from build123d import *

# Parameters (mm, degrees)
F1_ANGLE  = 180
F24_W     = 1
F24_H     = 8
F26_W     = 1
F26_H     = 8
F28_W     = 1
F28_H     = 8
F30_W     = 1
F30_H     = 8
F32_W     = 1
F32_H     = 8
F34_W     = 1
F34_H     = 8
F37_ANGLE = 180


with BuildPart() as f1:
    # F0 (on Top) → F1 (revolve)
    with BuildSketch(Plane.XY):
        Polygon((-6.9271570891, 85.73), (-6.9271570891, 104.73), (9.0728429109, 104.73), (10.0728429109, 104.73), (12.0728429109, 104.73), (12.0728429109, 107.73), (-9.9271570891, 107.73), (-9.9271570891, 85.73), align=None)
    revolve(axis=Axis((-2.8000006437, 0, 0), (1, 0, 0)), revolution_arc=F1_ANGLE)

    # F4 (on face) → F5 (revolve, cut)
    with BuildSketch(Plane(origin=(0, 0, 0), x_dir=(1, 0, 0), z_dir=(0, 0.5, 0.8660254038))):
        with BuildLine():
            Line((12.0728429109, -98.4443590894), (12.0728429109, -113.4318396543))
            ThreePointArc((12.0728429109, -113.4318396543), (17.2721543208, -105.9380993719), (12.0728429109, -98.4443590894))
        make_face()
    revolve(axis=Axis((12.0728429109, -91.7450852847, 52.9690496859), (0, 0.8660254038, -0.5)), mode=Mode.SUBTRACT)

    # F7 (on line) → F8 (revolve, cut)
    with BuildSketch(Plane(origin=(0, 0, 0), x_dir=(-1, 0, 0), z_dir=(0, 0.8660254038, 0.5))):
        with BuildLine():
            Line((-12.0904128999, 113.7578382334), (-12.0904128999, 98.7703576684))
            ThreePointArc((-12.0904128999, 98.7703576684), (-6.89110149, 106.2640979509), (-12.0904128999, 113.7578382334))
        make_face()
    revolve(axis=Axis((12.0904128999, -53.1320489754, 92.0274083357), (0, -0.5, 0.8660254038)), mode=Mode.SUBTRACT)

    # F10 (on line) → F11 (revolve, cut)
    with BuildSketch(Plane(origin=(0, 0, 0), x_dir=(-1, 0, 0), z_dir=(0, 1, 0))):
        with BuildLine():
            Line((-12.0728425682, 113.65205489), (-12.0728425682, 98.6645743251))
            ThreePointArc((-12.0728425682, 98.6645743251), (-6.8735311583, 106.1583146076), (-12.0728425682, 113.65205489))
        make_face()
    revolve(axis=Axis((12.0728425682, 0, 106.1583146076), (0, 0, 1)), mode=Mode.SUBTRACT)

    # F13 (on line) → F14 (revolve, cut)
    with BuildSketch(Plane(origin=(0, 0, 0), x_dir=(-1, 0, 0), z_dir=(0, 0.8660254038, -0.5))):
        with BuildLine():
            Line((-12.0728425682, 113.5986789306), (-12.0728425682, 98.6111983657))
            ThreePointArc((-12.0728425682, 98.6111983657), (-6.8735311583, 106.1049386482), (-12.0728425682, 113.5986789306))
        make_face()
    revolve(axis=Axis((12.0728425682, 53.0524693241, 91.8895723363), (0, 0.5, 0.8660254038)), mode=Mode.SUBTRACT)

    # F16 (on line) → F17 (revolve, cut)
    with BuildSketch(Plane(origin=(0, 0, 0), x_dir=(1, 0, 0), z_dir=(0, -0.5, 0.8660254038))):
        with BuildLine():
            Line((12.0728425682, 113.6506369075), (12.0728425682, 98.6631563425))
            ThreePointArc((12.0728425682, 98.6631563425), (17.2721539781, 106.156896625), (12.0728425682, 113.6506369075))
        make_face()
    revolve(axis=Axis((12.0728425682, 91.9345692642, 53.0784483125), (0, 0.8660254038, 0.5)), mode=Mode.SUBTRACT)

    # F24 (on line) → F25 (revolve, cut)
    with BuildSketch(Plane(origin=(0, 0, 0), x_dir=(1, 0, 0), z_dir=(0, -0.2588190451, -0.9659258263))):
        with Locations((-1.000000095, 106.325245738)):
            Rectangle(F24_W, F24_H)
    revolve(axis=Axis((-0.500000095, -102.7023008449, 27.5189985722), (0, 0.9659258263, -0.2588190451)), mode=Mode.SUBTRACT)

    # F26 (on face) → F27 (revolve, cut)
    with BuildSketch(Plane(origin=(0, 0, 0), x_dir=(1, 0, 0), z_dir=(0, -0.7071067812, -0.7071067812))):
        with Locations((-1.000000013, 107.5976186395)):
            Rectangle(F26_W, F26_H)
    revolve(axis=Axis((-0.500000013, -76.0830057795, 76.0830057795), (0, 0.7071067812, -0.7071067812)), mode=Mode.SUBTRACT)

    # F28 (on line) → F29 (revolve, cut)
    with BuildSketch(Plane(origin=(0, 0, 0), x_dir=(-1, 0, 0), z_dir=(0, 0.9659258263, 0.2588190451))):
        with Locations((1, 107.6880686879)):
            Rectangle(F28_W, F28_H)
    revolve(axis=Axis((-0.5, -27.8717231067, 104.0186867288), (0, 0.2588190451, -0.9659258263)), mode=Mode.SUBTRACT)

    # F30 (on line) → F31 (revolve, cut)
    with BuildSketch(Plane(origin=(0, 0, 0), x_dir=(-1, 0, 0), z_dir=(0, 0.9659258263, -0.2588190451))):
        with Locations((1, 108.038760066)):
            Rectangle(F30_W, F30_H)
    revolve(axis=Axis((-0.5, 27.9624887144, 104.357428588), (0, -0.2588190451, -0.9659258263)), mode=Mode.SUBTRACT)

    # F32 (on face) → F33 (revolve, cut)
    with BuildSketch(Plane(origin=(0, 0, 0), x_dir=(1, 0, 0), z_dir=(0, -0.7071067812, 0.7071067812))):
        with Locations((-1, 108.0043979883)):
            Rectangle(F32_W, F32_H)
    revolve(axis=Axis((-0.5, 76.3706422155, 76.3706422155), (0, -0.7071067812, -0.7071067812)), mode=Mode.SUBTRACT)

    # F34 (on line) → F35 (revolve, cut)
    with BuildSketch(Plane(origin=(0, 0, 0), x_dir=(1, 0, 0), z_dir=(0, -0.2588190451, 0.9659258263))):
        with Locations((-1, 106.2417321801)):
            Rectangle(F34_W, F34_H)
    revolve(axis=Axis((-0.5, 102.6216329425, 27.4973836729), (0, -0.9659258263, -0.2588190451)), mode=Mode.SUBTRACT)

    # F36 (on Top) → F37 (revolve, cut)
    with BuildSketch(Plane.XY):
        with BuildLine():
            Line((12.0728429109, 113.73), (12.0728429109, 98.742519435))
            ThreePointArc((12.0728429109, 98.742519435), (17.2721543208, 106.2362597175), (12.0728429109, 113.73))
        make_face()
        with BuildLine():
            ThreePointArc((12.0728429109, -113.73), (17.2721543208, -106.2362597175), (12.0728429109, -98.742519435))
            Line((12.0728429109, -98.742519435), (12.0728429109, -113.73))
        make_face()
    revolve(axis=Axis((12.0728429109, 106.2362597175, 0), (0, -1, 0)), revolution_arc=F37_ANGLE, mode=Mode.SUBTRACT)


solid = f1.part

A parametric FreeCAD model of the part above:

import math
import FreeCAD as App
import Part
import Sketcher
from FreeCAD import Vector
Q = App.Units.Quantity

doc = App.newDocument("Part")
params = doc.addObject("Spreadsheet::Sheet", "Params")
for row, (alias, value) in enumerate([
    ("sketch1_width", "19 mm"),
    ("sketch1_width2", "22 mm"),
    ("revolution_angle", "180 deg"),
    ("sketch2_radius", "8 mm"),
    ("groove_angle", "360 deg"),
    ("sketch3_radius", "8 mm"),
    ("groove2_angle", "360 deg"),
    ("sketch4_radius", "8 mm"),
    ("groove3_angle", "360 deg"),
    ("sketch5_radius", "8 mm"),
    ("groove4_angle", "360 deg"),
    ("sketch6_radius", "8 mm"),
    ("groove5_angle", "360 deg"),
    ("sketch7_width", "1 mm"),
    ("sketch7_height", "8 mm"),
    ("groove6_angle", "360 deg"),
    ("sketch8_width", "1 mm"),
    ("sketch8_height", "8 mm"),
    ("groove7_angle", "360 deg"),
    ("sketch9_width", "1 mm"),
    ("sketch9_height", "8 mm"),
    ("groove8_angle", "360 deg"),
    ("sketch10_width", "1 mm"),
    ("sketch10_height", "8 mm"),
    ("groove9_angle", "360 deg"),
    ("sketch11_width", "1 mm"),
    ("sketch11_height", "8 mm"),
    ("groove10_angle", "360 deg"),
    ("sketch12_width", "1 mm"),
    ("sketch12_height", "8 mm"),
    ("groove11_angle", "360 deg"),
    ("sketch13_radius", "8 mm"),
    ("sketch13_height", "227.46 mm"),
    ("groove12_angle", "180 deg"),
], start=1):
    params.set(f"A{row}", alias)
    params.set(f"B{row}", "=" + value)
    params.setAlias(f"B{row}", alias)

body = doc.addObject("PartDesign::Body", "Body")

# Sketch on XY plane
sketch1 = body.newObject("Sketcher::SketchObject", "Sketch")
sketch1.AttachmentSupport = (doc.getObject("XY_Plane"), [""])
sketch1.MapMode = "FlatFace"
sketch1.addGeometry([
    Part.LineSegment(Vector(-6.9, 85.7, 0), Vector(-6.9, 104.7, 0)),  # 0
    Part.LineSegment(Vector(-6.9, 104.7, 0), Vector(12.1, 104.7, 0)),  # 1
    Part.LineSegment(Vector(12.1, 104.7, 0), Vector(12.1, 107.7, 0)),  # 2
    Part.LineSegment(Vector(12.1, 107.7, 0), Vector(-9.9, 107.7, 0)),  # 3
    Part.LineSegment(Vector(-9.9, 107.7, 0), Vector(-9.9, 85.7, 0)),  # 4
    Part.LineSegment(Vector(-9.9, 85.7, 0), Vector(-6.9, 85.7, 0)),  # 5
], False)
sketch1.addConstraint([
    Sketcher.Constraint("Coincident", 0, 2, 1, 1),
    Sketcher.Constraint("Coincident", 1, 2, 2, 1),
    Sketcher.Constraint("Coincident", 2, 2, 3, 1),
    Sketcher.Constraint("Coincident", 3, 2, 4, 1),
    Sketcher.Constraint("Coincident", 4, 2, 5, 1),
    Sketcher.Constraint("Coincident", 5, 2, 0, 1),
    Sketcher.Constraint("Vertical", 0),
    Sketcher.Constraint("Horizontal", 1),
    Sketcher.Constraint("Vertical", 2),
    Sketcher.Constraint("Horizontal", 3),
    Sketcher.Constraint("Vertical", 4),
    Sketcher.Constraint("Horizontal", 5),
    Sketcher.Constraint("Equal", 1, 0),
    Sketcher.Constraint("Equal", 5, 2),
    Sketcher.Constraint("DistanceX", 1, 1, 1, 2, Q("19 mm")),
    Sketcher.Constraint("DistanceX", 3, 2, 3, 1, Q("22 mm")),
    Sketcher.Constraint("DistanceY", -1, 1, 0, 2, Q("104.73 mm")),
    Sketcher.Constraint("DistanceX", 0, 2, -1, 1, Q("6.927157 mm")),
])
sketch1.setExpression("Constraints[14]", "Params.sketch1_width")
sketch1.setExpression("Constraints[15]", "Params.sketch1_width2")
revolution = body.newObject("PartDesign::Revolution", "Revolution")
revolution.Profile = sketch1
revolution.ReferenceAxis = (sketch1, ["H_Axis"])
revolution.setExpression("Angle", "Params.revolution_angle")

# Sketch on an angled plane
sketch2 = body.newObject("Sketcher::SketchObject", "Sketch001")
sketch2.Placement = App.Placement(Vector(0, 0, 0), App.Rotation(Vector(1, 0, 0), Vector(0, 0.866025404, -0.5), Vector(0, 0.5, 0.866025404), "ZXY"))
sketch2.addGeometry([
    Part.LineSegment(Vector(12, -98, 0), Vector(12, -113, 0)),
    Part.ArcOfCircle(Part.Circle(Vector(9, -106, 0), Vector(0, 0, 1), 8), math.radians(-70), math.radians(70)),
], False)
sketch2.addGeometry(Part.LineSegment(Vector(12, -113, 0), Vector(12, -98, 0)), True)  # axis
sketch2.addConstraint([
    Sketcher.Constraint("Coincident", 0, 1, 1, 2),
    Sketcher.Constraint("Coincident", 1, 1, 0, 2),
    Sketcher.Constraint("Vertical", 0),
    Sketcher.Constraint("Vertical", 2),
    Sketcher.Constraint("Coincident", 2, 1, 1, 1),
    Sketcher.Constraint("Equal", 0, 2),
    Sketcher.Constraint("Radius", 1, Q("8 mm")),
    Sketcher.Constraint("DistanceY", 0, 2, 0, 1, Q("14.987481 mm")),
    Sketcher.Constraint("DistanceY", 1, 3, -1, 1, Q("105.938099 mm")),
    Sketcher.Constraint("DistanceX", -1, 1, 1, 3, Q("9.272154 mm")),
])
sketch2.setExpression("Constraints[6]", "Params.sketch2_radius")
groove = body.newObject("PartDesign::Groove", "Groove")
groove.Profile = sketch2
groove.ReferenceAxis = (sketch2, ["Axis0"])
groove.setExpression("Angle", "Params.groove_angle")

# Sketch on an angled plane
sketch3 = body.newObject("Sketcher::SketchObject", "Sketch002")
sketch3.Placement = App.Placement(Vector(0, 0, 0), App.Rotation(Vector(-1, 0, 0), Vector(0, -0.5, 0.866025404), Vector(0, 0.866025404, 0.5), "ZXY"))
sketch3.addGeometry([
    Part.LineSegment(Vector(-12, 114, 0), Vector(-12, 99, 0)),
    Part.ArcOfCircle(Part.Circle(Vector(-15, 106, 0), Vector(0, 0, 1), 8), math.radians(-70), math.radians(70)),
], False)
sketch3.addGeometry(Part.LineSegment(Vector(-12, 99, 0), Vector(-12, 114, 0)), True)  # axis
sketch3.addConstraint([
    Sketcher.Constraint("Coincident", 0, 1, 1, 2),
    Sketcher.Constraint("Coincident", 1, 1, 0, 2),
    Sketcher.Constraint("Vertical", 0),
    Sketcher.Constraint("Vertical", 2),
    Sketcher.Constraint("Coincident", 2, 1, 1, 1),
    Sketcher.Constraint("Equal", 0, 2),
    Sketcher.Constraint("Radius", 1, Q("8 mm")),
    Sketcher.Constraint("DistanceY", 0, 2, 0, 1, Q("14.987481 mm")),
    Sketcher.Constraint("DistanceX", 1, 3, -1, 1, Q("14.891101 mm")),
    Sketcher.Constraint("DistanceY", -1, 1, 0, 1, Q("113.757838 mm")),
])
sketch3.setExpression("Constraints[6]", "Params.sketch3_radius")
groove2 = body.newObject("PartDesign::Groove", "Groove001")
groove2.Profile = sketch3
groove2.ReferenceAxis = (sketch3, ["Axis0"])
groove2.setExpression("Angle", "Params.groove2_angle")

# Sketch on XZ plane
sketch4 = body.newObject("Sketcher::SketchObject", "Sketch003")
sketch4.AttachmentSupport = (doc.getObject("XZ_Plane"), [""])
sketch4.MapMode = "FlatFace"
sketch4.addGeometry([
    Part.LineSegment(Vector(12, 114, 0), Vector(12, 99, 0)),
    Part.ArcOfCircle(Part.Circle(Vector(15, 106, 0), Vector(0, 0, 1), 8), math.radians(110), math.radians(250)),
], False)
sketch4.addGeometry(Part.LineSegment(Vector(12, 99, 0), Vector(12, 114, 0)), True)  # axis
sketch4.addConstraint([
    Sketcher.Constraint("Coincident", 0, 1, 1, 1),
    Sketcher.Constraint("Coincident", 1, 2, 0, 2),
    Sketcher.Constraint("Vertical", 0),
    Sketcher.Constraint("Vertical", 2),
    Sketcher.Constraint("Coincident", 2, 1, 1, 2),
    Sketcher.Constraint("Equal", 0, 2),
    Sketcher.Constraint("Radius", 1, Q("8 mm")),
    Sketcher.Constraint("DistanceY", 0, 2, 0, 1, Q("14.987481 mm")),
    Sketcher.Constraint("DistanceX", -1, 1, 1, 3, Q("14.873531 mm")),
    Sketcher.Constraint("DistanceY", -1, 1, 1, 3, Q("106.158315 mm")),
])
sketch4.setExpression("Constraints[6]", "Params.sketch4_radius")
groove3 = body.newObject("PartDesign::Groove", "Groove002")
groove3.Profile = sketch4
groove3.ReferenceAxis = (sketch4, ["Axis0"])
groove3.setExpression("Angle", "Params.groove3_angle")

# Sketch on an angled plane
sketch5 = body.newObject("Sketcher::SketchObject", "Sketch004")
sketch5.Placement = App.Placement(Vector(0, 0, 0), App.Rotation(Vector(-1, 0, 0), Vector(0, 0.5, 0.866025404), Vector(0, 0.866025404, -0.5), "ZXY"))
sketch5.addGeometry([
    Part.LineSegment(Vector(-12, 114, 0), Vector(-12, 99, 0)),
    Part.ArcOfCircle(Part.Circle(Vector(-15, 106, 0), Vector(0, 0, 1), 8), math.radians(-70), math.radians(70)),
], False)
sketch5.addGeometry(Part.LineSegment(Vector(-12, 99, 0), Vector(-12, 114, 0)), True)  # axis
sketch5.addConstraint([
    Sketcher.Constraint("Coincident", 0, 1, 1, 2),
    Sketcher.Constraint("Coincident", 1, 1, 0, 2),
    Sketcher.Constraint("Vertical", 0),
    Sketcher.Constraint("Vertical", 2),
    Sketcher.Constraint("Coincident", 2, 1, 1, 1),
    Sketcher.Constraint("Equal", 0, 2),
    Sketcher.Constraint("Radius", 1, Q("8 mm")),
    Sketcher.Constraint("DistanceY", 0, 2, 0, 1, Q("14.987481 mm")),
    Sketcher.Constraint("DistanceY", -1, 1, 1, 1, Q("98.611198 mm")),
    Sketcher.Constraint("DistanceX", 1, 3, -1, 1, Q("14.873531 mm")),
])
sketch5.setExpression("Constraints[6]", "Params.sketch5_radius")
groove4 = body.newObject("PartDesign::Groove", "Groove003")
groove4.Profile = sketch5
groove4.ReferenceAxis = (sketch5, ["Axis0"])
groove4.setExpression("Angle", "Params.groove4_angle")

# Sketch on an angled plane
sketch6 = body.newObject("Sketcher::SketchObject", "Sketch005")
sketch6.Placement = App.Placement(Vector(0, 0, 0), App.Rotation(Vector(1, 0, 0), Vector(0, 0.866025404, 0.5), Vector(0, -0.5, 0.866025404), "ZXY"))
sketch6.addGeometry([
    Part.LineSegment(Vector(12, 114, 0), Vector(12, 99, 0)),
    Part.ArcOfCircle(Part.Circle(Vector(9, 106, 0), Vector(0, 0, 1), 8), math.radians(-70), math.radians(70)),
], False)
sketch6.addGeometry(Part.LineSegment(Vector(12, 99, 0), Vector(12, 114, 0)), True)  # axis
sketch6.addConstraint([
    Sketcher.Constraint("Coincident", 0, 1, 1, 2),
    Sketcher.Constraint("Coincident", 1, 1, 0, 2),
    Sketcher.Constraint("Vertical", 0),
    Sketcher.Constraint("Vertical", 2),
    Sketcher.Constraint("Coincident", 2, 1, 1, 1),
    Sketcher.Constraint("Equal", 0, 2),
    Sketcher.Constraint("Radius", 1, Q("8 mm")),
    Sketcher.Constraint("DistanceY", 0, 2, 0, 1, Q("14.987481 mm")),
    Sketcher.Constraint("DistanceX", -1, 1, 1, 3, Q("9.272154 mm")),
    Sketcher.Constraint("DistanceY", -1, 1, 1, 3, Q("106.156897 mm")),
])
sketch6.setExpression("Constraints[6]", "Params.sketch6_radius")
groove5 = body.newObject("PartDesign::Groove", "Groove004")
groove5.Profile = sketch6
groove5.ReferenceAxis = (sketch6, ["Axis0"])
groove5.setExpression("Angle", "Params.groove5_angle")

# Sketch on an angled plane
sketch7 = body.newObject("Sketcher::SketchObject", "Sketch006")
sketch7.Placement = App.Placement(Vector(0, 0, 0), App.Rotation(Vector(1, 0, 0), Vector(0, -0.965925826, 0.258819045), Vector(0, -0.258819045, -0.965925826), "ZXY"))
sketch7.addGeometry([
    Part.LineSegment(Vector(-1.5, 110.3, 0), Vector(-1.5, 102.3, 0)),
    Part.LineSegment(Vector(-1.5, 102.3, 0), Vector(-0.5, 102.3, 0)),
    Part.LineSegment(Vector(-0.5, 102.3, 0), Vector(-0.5, 110.3, 0)),
    Part.LineSegment(Vector(-0.5, 110.3, 0), Vector(-1.5, 110.3, 0)),
], False)
sketch7.addGeometry(Part.LineSegment(Vector(-0.5, 110.3, 0), Vector(-0.5, 102.3, 0)), True)  # axis
sketch7.addConstraint([
    Sketcher.Constraint("Coincident", 0, 2, 1, 1),
    Sketcher.Constraint("Coincident", 1, 2, 2, 1),
    Sketcher.Constraint("Coincident", 2, 2, 3, 1),
    Sketcher.Constraint("Coincident", 3, 2, 0, 1),
    Sketcher.Constraint("Vertical", 0),
    Sketcher.Constraint("Horizontal", 1),
    Sketcher.Constraint("Vertical", 2),
    Sketcher.Constraint("Horizontal", 3),
    Sketcher.Constraint("Vertical", 4),
    Sketcher.Constraint("Coincident", 4, 1, 2, 2),
    Sketcher.Constraint("Horizontal", 0, 2, 4, 2),
    Sketcher.Constraint("DistanceX", 1, 1, 1, 2, Q("1 mm")),
    Sketcher.Constraint("DistanceY", 0, 2, 0, 1, Q("8 mm")),
    Sketcher.Constraint("DistanceX", 0, 2, -1, 1, Q("1.5 mm")),
    Sketcher.Constraint("DistanceY", -1, 1, 0, 2, Q("102.325246 mm")),
])
sketch7.setExpression("Constraints[11]", "Params.sketch7_width")
sketch7.setExpression("Constraints[12]", "Params.sketch7_height")
groove6 = body.newObject("PartDesign::Groove", "Groove005")
groove6.Profile = sketch7
groove6.ReferenceAxis = (sketch7, ["Axis0"])
groove6.setExpression("Angle", "Params.groove6_angle")

# Sketch on an angled plane
sketch8 = body.newObject("Sketcher::SketchObject", "Sketch007")
sketch8.Placement = App.Placement(Vector(0, 0, 0), App.Rotation(Vector(1, 0, 0), Vector(0, -0.707106781, 0.707106781), Vector(0, -0.707106781, -0.707106781), "ZXY"))
sketch8.addGeometry([
    Part.LineSegment(Vector(-1.5, 111.6, 0), Vector(-1.5, 103.6, 0)),
    Part.LineSegment(Vector(-1.5, 103.6, 0), Vector(-0.5, 103.6, 0)),
    Part.LineSegment(Vector(-0.5, 103.6, 0), Vector(-0.5, 111.6, 0)),
    Part.LineSegment(Vector(-0.5, 111.6, 0), Vector(-1.5, 111.6, 0)),
], False)
sketch8.addGeometry(Part.LineSegment(Vector(-0.5, 111.6, 0), Vector(-0.5, 103.6, 0)), True)  # axis
sketch8.addConstraint([
    Sketcher.Constraint("Coincident", 0, 2, 1, 1),
    Sketcher.Constraint("Coincident", 1, 2, 2, 1),
    Sketcher.Constraint("Coincident", 2, 2, 3, 1),
    Sketcher.Constraint("Coincident", 3, 2, 0, 1),
    Sketcher.Constraint("Vertical", 0),
    Sketcher.Constraint("Horizontal", 1),
    Sketcher.Constraint("Vertical", 2),
    Sketcher.Constraint("Horizontal", 3),
    Sketcher.Constraint("Vertical", 4),
    Sketcher.Constraint("Coincident", 4, 1, 2, 2),
    Sketcher.Constraint("Horizontal", 0, 2, 4, 2),
    Sketcher.Constraint("DistanceX", 1, 1, 1, 2, Q("1 mm")),
    Sketcher.Constraint("DistanceY", 0, 2, 0, 1, Q("8 mm")),
    Sketcher.Constraint("DistanceX", 0, 2, -1, 1, Q("1.5 mm")),
    Sketcher.Constraint("DistanceY", -1, 1, 0, 2, Q("103.597619 mm")),
])
sketch8.setExpression("Constraints[11]", "Params.sketch8_width")
sketch8.setExpression("Constraints[12]", "Params.sketch8_height")
groove7 = body.newObject("PartDesign::Groove", "Groove006")
groove7.Profile = sketch8
groove7.ReferenceAxis = (sketch8, ["Axis0"])
groove7.setExpression("Angle", "Params.groove7_angle")

# Sketch on an angled plane
sketch9 = body.newObject("Sketcher::SketchObject", "Sketch008")
sketch9.Placement = App.Placement(Vector(0, 0, 0), App.Rotation(Vector(-1, 0, 0), Vector(0, -0.258819045, 0.965925826), Vector(0, 0.965925826, 0.258819045), "ZXY"))
sketch9.addGeometry([
    Part.LineSegment(Vector(0.5, 111.7, 0), Vector(0.5, 103.7, 0)),
    Part.LineSegment(Vector(0.5, 103.7, 0), Vector(1.5, 103.7, 0)),
    Part.LineSegment(Vector(1.5, 103.7, 0), Vector(1.5, 111.7, 0)),
    Part.LineSegment(Vector(1.5, 111.7, 0), Vector(0.5, 111.7, 0)),
], False)
sketch9.addGeometry(Part.LineSegment(Vector(0.5, 111.7, 0), Vector(0.5, 103.7, 0)), True)  # axis
sketch9.addConstraint([
    Sketcher.Constraint("Coincident", 0, 2, 1, 1),
    Sketcher.Constraint("Coincident", 1, 2, 2, 1),
    Sketcher.Constraint("Coincident", 2, 2, 3, 1),
    Sketcher.Constraint("Coincident", 3, 2, 0, 1),
    Sketcher.Constraint("Vertical", 0),
    Sketcher.Constraint("Horizontal", 1),
    Sketcher.Constraint("Vertical", 2),
    Sketcher.Constraint("Horizontal", 3),
    Sketcher.Constraint("Vertical", 4),
    Sketcher.Constraint("Coincident", 4, 1, 3, 2),
    Sketcher.Constraint("Horizontal", 1, 2, 4, 2),
    Sketcher.Constraint("DistanceX", 1, 1, 1, 2, Q("1 mm")),
    Sketcher.Constraint("DistanceY", 0, 2, 0, 1, Q("8 mm")),
    Sketcher.Constraint("DistanceX", -1, 1, 0, 2, Q("0.5 mm")),
    Sketcher.Constraint("DistanceY", -1, 1, 0, 2, Q("103.688069 mm")),
])
sketch9.setExpression("Constraints[11]", "Params.sketch9_width")
sketch9.setExpression("Constraints[12]", "Params.sketch9_height")
groove8 = body.newObject("PartDesign::Groove", "Groove007")
groove8.Profile = sketch9
groove8.ReferenceAxis = (sketch9, ["Axis0"])
groove8.setExpression("Angle", "Params.groove8_angle")

# Sketch on an angled plane
sketch10 = body.newObject("Sketcher::SketchObject", "Sketch009")
sketch10.Placement = App.Placement(Vector(0, 0, 0), App.Rotation(Vector(-1, 0, 0), Vector(0, 0.258819045, 0.965925826), Vector(0, 0.965925826, -0.258819045), "ZXY"))
sketch10.addGeometry([
    Part.LineSegment(Vector(0.5, 112, 0), Vector(0.5, 104, 0)),
    Part.LineSegment(Vector(0.5, 104, 0), Vector(1.5, 104, 0)),
    Part.LineSegment(Vector(1.5, 104, 0), Vector(1.5, 112, 0)),
    Part.LineSegment(Vector(1.5, 112, 0), Vector(0.5, 112, 0)),
], False)
sketch10.addGeometry(Part.LineSegment(Vector(0.5, 112, 0), Vector(0.5, 104, 0)), True)  # axis
sketch10.addConstraint([
    Sketcher.Constraint("Coincident", 0, 2, 1, 1),
    Sketcher.Constraint("Coincident", 1, 2, 2, 1),
    Sketcher.Constraint("Coincident", 2, 2, 3, 1),
    Sketcher.Constraint("Coincident", 3, 2, 0, 1),
    Sketcher.Constraint("Vertical", 0),
    Sketcher.Constraint("Horizontal", 1),
    Sketcher.Constraint("Vertical", 2),
    Sketcher.Constraint("Horizontal", 3),
    Sketcher.Constraint("Vertical", 4),
    Sketcher.Constraint("Coincident", 4, 1, 3, 2),
    Sketcher.Constraint("Horizontal", 1, 2, 4, 2),
    Sketcher.Constraint("DistanceX", 1, 1, 1, 2, Q("1 mm")),
    Sketcher.Constraint("DistanceY", 0, 2, 0, 1, Q("8 mm")),
    Sketcher.Constraint("DistanceX", -1, 1, 0, 2, Q("0.5 mm")),
    Sketcher.Constraint("DistanceY", -1, 1, 0, 2, Q("104.03876 mm")),
])
sketch10.setExpression("Constraints[11]", "Params.sketch10_width")
sketch10.setExpression("Constraints[12]", "Params.sketch10_height")
groove9 = body.newObject("PartDesign::Groove", "Groove008")
groove9.Profile = sketch10
groove9.ReferenceAxis = (sketch10, ["Axis0"])
groove9.setExpression("Angle", "Params.groove9_angle")

# Sketch on an angled plane
sketch11 = body.newObject("Sketcher::SketchObject", "Sketch010")
sketch11.Placement = App.Placement(Vector(0, 0, 0), App.Rotation(Vector(1, 0, 0), Vector(0, 0.707106781, 0.707106781), Vector(0, -0.707106781, 0.707106781), "ZXY"))
sketch11.addGeometry([
    Part.LineSegment(Vector(-1.5, 112, 0), Vector(-1.5, 104, 0)),
    Part.LineSegment(Vector(-1.5, 104, 0), Vector(-0.5, 104, 0)),
    Part.LineSegment(Vector(-0.5, 104, 0), Vector(-0.5, 112, 0)),
    Part.LineSegment(Vector(-0.5, 112, 0), Vector(-1.5, 112, 0)),
], False)
sketch11.addGeometry(Part.LineSegment(Vector(-0.5, 112, 0), Vector(-0.5, 104, 0)), True)  # axis
sketch11.addConstraint([
    Sketcher.Constraint("Coincident", 0, 2, 1, 1),
    Sketcher.Constraint("Coincident", 1, 2, 2, 1),
    Sketcher.Constraint("Coincident", 2, 2, 3, 1),
    Sketcher.Constraint("Coincident", 3, 2, 0, 1),
    Sketcher.Constraint("Vertical", 0),
    Sketcher.Constraint("Horizontal", 1),
    Sketcher.Constraint("Vertical", 2),
    Sketcher.Constraint("Horizontal", 3),
    Sketcher.Constraint("Vertical", 4),
    Sketcher.Constraint("Coincident", 4, 1, 2, 2),
    Sketcher.Constraint("Horizontal", 0, 2, 4, 2),
    Sketcher.Constraint("DistanceX", 1, 1, 1, 2, Q("1 mm")),
    Sketcher.Constraint("DistanceY", 0, 2, 0, 1, Q("8 mm")),
    Sketcher.Constraint("DistanceX", 0, 2, -1, 1, Q("1.5 mm")),
    Sketcher.Constraint("DistanceY", -1, 1, 0, 2, Q("104.004398 mm")),
])
sketch11.setExpression("Constraints[11]", "Params.sketch11_width")
sketch11.setExpression("Constraints[12]", "Params.sketch11_height")
groove10 = body.newObject("PartDesign::Groove", "Groove009")
groove10.Profile = sketch11
groove10.ReferenceAxis = (sketch11, ["Axis0"])
groove10.setExpression("Angle", "Params.groove10_angle")

# Sketch on an angled plane
sketch12 = body.newObject("Sketcher::SketchObject", "Sketch011")
sketch12.Placement = App.Placement(Vector(0, 0, 0), App.Rotation(Vector(1, 0, 0), Vector(0, 0.965925826, 0.258819045), Vector(0, -0.258819045, 0.965925826), "ZXY"))
sketch12.addGeometry([
    Part.LineSegment(Vector(-1.5, 110.2, 0), Vector(-1.5, 102.2, 0)),
    Part.LineSegment(Vector(-1.5, 102.2, 0), Vector(-0.5, 102.2, 0)),
    Part.LineSegment(Vector(-0.5, 102.2, 0), Vector(-0.5, 110.2, 0)),
    Part.LineSegment(Vector(-0.5, 110.2, 0), Vector(-1.5, 110.2, 0)),
], False)
sketch12.addGeometry(Part.LineSegment(Vector(-0.5, 110.2, 0), Vector(-0.5, 102.2, 0)), True)  # axis
sketch12.addConstraint([
    Sketcher.Constraint("Coincident", 0, 2, 1, 1),
    Sketcher.Constraint("Coincident", 1, 2, 2, 1),
    Sketcher.Constraint("Coincident", 2, 2, 3, 1),
    Sketcher.Constraint("Coincident", 3, 2, 0, 1),
    Sketcher.Constraint("Vertical", 0),
    Sketcher.Constraint("Horizontal", 1),
    Sketcher.Constraint("Vertical", 2),
    Sketcher.Constraint("Horizontal", 3),
    Sketcher.Constraint("Vertical", 4),
    Sketcher.Constraint("Coincident", 4, 1, 2, 2),
    Sketcher.Constraint("Horizontal", 0, 2, 4, 2),
    Sketcher.Constraint("DistanceX", 1, 1, 1, 2, Q("1 mm")),
    Sketcher.Constraint("DistanceY", 0, 2, 0, 1, Q("8 mm")),
    Sketcher.Constraint("DistanceX", 0, 2, -1, 1, Q("1.5 mm")),
    Sketcher.Constraint("DistanceY", -1, 1, 0, 2, Q("102.241732 mm")),
])
sketch12.setExpression("Constraints[11]", "Params.sketch12_width")
sketch12.setExpression("Constraints[12]", "Params.sketch12_height")
groove11 = body.newObject("PartDesign::Groove", "Groove010")
groove11.Profile = sketch12
groove11.ReferenceAxis = (sketch12, ["Axis0"])
groove11.setExpression("Angle", "Params.groove11_angle")

# Sketch on XY plane
sketch13 = body.newObject("Sketcher::SketchObject", "Sketch012")
sketch13.AttachmentSupport = (doc.getObject("XY_Plane"), [""])
sketch13.MapMode = "FlatFace"
sketch13.addGeometry([
    Part.LineSegment(Vector(12, 114, 0), Vector(12, 99, 0)),
    Part.ArcOfCircle(Part.Circle(Vector(9, 106, 0), Vector(0, 0, 1), 8), math.radians(-70), math.radians(70)),
    Part.ArcOfCircle(Part.Circle(Vector(9, -106, 0), Vector(0, 0, 1), 8), math.radians(-70), math.radians(70)),
    Part.LineSegment(Vector(12, -99, 0), Vector(12, -114, 0)),
], False)
sketch13.addGeometry(Part.LineSegment(Vector(12, 114, 0), Vector(12, -114, 0)), True)  # axis
sketch13.addConstraint([
    Sketcher.Constraint("Coincident", 0, 1, 1, 2),
    Sketcher.Constraint("Coincident", 1, 1, 0, 2),
    Sketcher.Constraint("Coincident", 2, 1, 3, 2),
    Sketcher.Constraint("Coincident", 3, 1, 2, 2),
    Sketcher.Constraint("Vertical", 0),
    Sketcher.Constraint("Vertical", 3),
    Sketcher.Constraint("Vertical", 4),
    Sketcher.Constraint("Coincident", 4, 1, 0, 1),
    Sketcher.Constraint("Coincident", 4, 2, 2, 1),
    Sketcher.Constraint("Equal", 1, 2),
    Sketcher.Constraint("Symmetric", 1, 3, 2, 3, -1),
    Sketcher.Constraint("Radius", 1, Q("8 mm")),
    Sketcher.Constraint("DistanceY", 4, 2, 4, 1, Q("227.46 mm")),
    Sketcher.Constraint("DistanceY", 0, 2, 0, 1, Q("14.987481 mm")),
    Sketcher.Constraint("DistanceX", -1, 1, 1, 3, Q("9.272154 mm")),
])
sketch13.setExpression("Constraints[11]", "Params.sketch13_radius")
sketch13.setExpression("Constraints[12]", "Params.sketch13_height")
groove12 = body.newObject("PartDesign::Groove", "Groove011")
groove12.Profile = sketch13
groove12.ReferenceAxis = (sketch13, ["Axis0"])
groove12.setExpression("Angle", "Params.groove12_angle")

doc.recompute()
